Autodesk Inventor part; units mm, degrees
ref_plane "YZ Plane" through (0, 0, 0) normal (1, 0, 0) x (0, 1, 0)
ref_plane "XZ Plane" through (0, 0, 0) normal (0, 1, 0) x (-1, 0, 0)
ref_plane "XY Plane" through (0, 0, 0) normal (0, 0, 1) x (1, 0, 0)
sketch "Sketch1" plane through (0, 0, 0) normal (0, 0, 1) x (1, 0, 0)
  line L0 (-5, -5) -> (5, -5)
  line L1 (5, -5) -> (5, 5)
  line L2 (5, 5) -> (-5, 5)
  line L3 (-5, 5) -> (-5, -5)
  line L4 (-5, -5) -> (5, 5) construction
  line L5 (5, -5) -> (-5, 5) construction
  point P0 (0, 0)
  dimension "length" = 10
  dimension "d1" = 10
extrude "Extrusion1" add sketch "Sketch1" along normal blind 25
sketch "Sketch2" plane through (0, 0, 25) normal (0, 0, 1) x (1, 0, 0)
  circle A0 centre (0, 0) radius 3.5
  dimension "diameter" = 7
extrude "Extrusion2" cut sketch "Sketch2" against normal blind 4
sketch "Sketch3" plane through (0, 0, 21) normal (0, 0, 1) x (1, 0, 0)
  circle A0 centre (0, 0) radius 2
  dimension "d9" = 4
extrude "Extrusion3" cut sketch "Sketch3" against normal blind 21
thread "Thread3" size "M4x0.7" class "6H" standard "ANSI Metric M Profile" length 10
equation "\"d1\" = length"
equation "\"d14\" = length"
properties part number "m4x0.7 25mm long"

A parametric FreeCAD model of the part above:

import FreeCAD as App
import Part
import Sketcher
Q = App.Units.Quantity

doc = App.newDocument("Part")
params = doc.addObject("Spreadsheet::Sheet", "Params")
for row, (alias, value) in enumerate([
    ("sketch1_width", "10 mm"),
    ("pad1_length", "25 mm"),
    ("sketch2_diameter", "7 mm"),
    ("pocket1_length", "4 mm"),
    ("sketch3_diameter", "4 mm"),
    ("pocket2_length", "21 mm"),
], start=1):
    params.set(f"A{row}", alias)
    params.set(f"B{row}", "=" + value)
    params.setAlias(f"B{row}", alias)

body = doc.addObject("PartDesign::Body", "Body")

sketch1 = body.newObject("Sketcher::SketchObject", "Sketch")
sketch1.AttachmentSupport = (doc.getObject("XY_Plane"), [""])
sketch1.MapMode = "FlatFace"
sketch1.addGeometry([
    Part.LineSegment(App.Vector(-5, 5, 0), App.Vector(-5, -5, 0)),
    Part.LineSegment(App.Vector(-5, -5, 0), App.Vector(5, -5, 0)),
    Part.LineSegment(App.Vector(5, -5, 0), App.Vector(5, 5, 0)),
    Part.LineSegment(App.Vector(5, 5, 0), App.Vector(-5, 5, 0)),
], False)
sketch1.addConstraint([
    Sketcher.Constraint("Coincident", 0, 2, 1, 1),
    Sketcher.Constraint("Coincident", 1, 2, 2, 1),
    Sketcher.Constraint("Coincident", 2, 2, 3, 1),
    Sketcher.Constraint("Coincident", 3, 2, 0, 1),
    Sketcher.Constraint("Vertical", 0),
    Sketcher.Constraint("Horizontal", 1),
    Sketcher.Constraint("Vertical", 2),
    Sketcher.Constraint("Horizontal", 3),
    Sketcher.Constraint("Symmetric", 0, 2, 2, 2, -1, 1),
    Sketcher.Constraint("Equal", 3, 0),
    Sketcher.Constraint("DistanceX", 1, 1, 1, 2, Q("10 mm")),
])
sketch1.setExpression("Constraints[10]", "Params.sketch1_width")
pad1 = body.newObject("PartDesign::Pad", "Pad")
pad1.Profile = sketch1
pad1.setExpression("Length", "Params.pad1_length")

sketch2 = body.newObject("Sketcher::SketchObject", "Sketch001")
sketch2.AttachmentSupport = (doc.getObject("XY_Plane"), [""])
sketch2.MapMode = "FlatFace"
sketch2.AttachmentOffset = App.Placement(App.Vector(0, 0, 25), App.Rotation())
sketch2.addGeometry(Part.Circle(App.Vector(0, 0, 0), App.Vector(0, 0, 1), 3.5), False)
sketch2.addConstraint([
    Sketcher.Constraint("Coincident", 0, 3, -1, 1),
    Sketcher.Constraint("Diameter", 0, Q("7 mm")),
])
sketch2.setExpression("Constraints[1]", "Params.sketch2_diameter")
pocket1 = body.newObject("PartDesign::Pocket", "Pocket")
pocket1.Profile = sketch2
pocket1.setExpression("Length", "Params.pocket1_length")

sketch3 = body.newObject("Sketcher::SketchObject", "Sketch002")
sketch3.AttachmentSupport = (doc.getObject("XY_Plane"), [""])
sketch3.MapMode = "FlatFace"
sketch3.AttachmentOffset = App.Placement(App.Vector(0, 0, 21), App.Rotation())
sketch3.addGeometry(Part.Circle(App.Vector(0, 0, 0), App.Vector(0, 0, 1), 2), False)
sketch3.addConstraint([
    Sketcher.Constraint("Coincident", 0, 3, -1, 1),
    Sketcher.Constraint("Diameter", 0, Q("4 mm")),
])
sketch3.setExpression("Constraints[1]", "Params.sketch3_diameter")
pocket2 = body.newObject("PartDesign::Pocket", "Pocket001")
pocket2.Profile = sketch3
pocket2.setExpression("Length", "Params.pocket2_length")

doc.recompute()
